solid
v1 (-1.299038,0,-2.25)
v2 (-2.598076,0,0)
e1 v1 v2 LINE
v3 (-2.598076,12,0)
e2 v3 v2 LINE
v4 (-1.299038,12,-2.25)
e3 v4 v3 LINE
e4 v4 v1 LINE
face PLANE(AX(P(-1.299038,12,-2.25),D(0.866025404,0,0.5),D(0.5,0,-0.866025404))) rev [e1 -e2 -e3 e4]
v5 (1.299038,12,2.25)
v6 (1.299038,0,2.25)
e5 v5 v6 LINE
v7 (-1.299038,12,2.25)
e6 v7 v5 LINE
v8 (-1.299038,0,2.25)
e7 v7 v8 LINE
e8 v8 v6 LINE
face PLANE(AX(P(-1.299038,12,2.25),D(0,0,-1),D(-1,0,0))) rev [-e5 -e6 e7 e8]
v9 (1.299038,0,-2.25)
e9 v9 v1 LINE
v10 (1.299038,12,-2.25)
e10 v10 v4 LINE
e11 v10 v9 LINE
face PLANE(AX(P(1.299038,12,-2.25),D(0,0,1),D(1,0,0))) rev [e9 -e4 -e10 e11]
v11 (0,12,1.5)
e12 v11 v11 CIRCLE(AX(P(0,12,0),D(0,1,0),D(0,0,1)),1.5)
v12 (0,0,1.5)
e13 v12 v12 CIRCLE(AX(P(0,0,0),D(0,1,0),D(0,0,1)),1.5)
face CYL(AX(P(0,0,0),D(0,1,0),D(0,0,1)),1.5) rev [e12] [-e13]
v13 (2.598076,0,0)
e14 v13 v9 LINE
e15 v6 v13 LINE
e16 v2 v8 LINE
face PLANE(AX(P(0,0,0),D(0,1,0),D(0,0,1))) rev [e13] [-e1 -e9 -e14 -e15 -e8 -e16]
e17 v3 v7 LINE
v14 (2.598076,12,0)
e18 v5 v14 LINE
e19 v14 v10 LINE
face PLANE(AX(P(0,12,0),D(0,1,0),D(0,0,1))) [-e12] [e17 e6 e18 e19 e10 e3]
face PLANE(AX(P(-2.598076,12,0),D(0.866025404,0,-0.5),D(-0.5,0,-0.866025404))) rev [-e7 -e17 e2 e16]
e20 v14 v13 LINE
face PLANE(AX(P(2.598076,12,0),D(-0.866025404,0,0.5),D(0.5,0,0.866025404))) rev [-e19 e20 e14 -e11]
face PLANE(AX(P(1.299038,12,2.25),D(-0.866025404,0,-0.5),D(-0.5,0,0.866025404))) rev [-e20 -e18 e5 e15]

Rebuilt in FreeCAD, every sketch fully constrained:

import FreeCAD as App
import Part
import Sketcher

V = App.Vector
Q = App.Units.Quantity


def add_polygon(sketch, points):
    """Adds a closed chain of lines whose ends are joined by coincident constraints."""
    first, n = sketch.GeometryCount, len(points)
    for a, b in zip(points, points[1:] + points[:1]):
        sketch.addGeometry(Part.LineSegment(App.Vector(*a, 0), App.Vector(*b, 0)), False)
    for i in range(n):
        sketch.addConstraint(Sketcher.Constraint("Coincident", first + i, 2, first + (i + 1) % n, 1))

doc = App.newDocument("Part")
body = doc.addObject("PartDesign::Body", "Body")

# Sketch on XZ plane
sketch1 = body.newObject("Sketcher::SketchObject", "Sketch")
sketch1.AttachmentSupport = (doc.getObject("XZ_Plane"), [""])
sketch1.MapMode = "FlatFace"
add_polygon(sketch1, [(-1.299038, -2.25), (-2.598076, 0), (-1.299038, 2.25), (1.299038, 2.25), (2.598076, 0), (1.299038, -2.25)])  # lines 0-5
sketch1.addConstraint(Sketcher.Constraint("Horizontal", 2))
sketch1.addConstraint(Sketcher.Constraint("Horizontal", 5))
sketch1.addConstraint(Sketcher.Constraint("Symmetric", 0, 2, 3, 2, -1, 1))
sketch1.addConstraint(Sketcher.Constraint("Symmetric", 1, 2, 4, 2, -1, 1))
sketch1.addConstraint(Sketcher.Constraint("PointOnObject", 0, 2, -1))
sketch1.addConstraint(Sketcher.Constraint("Parallel", 0, 3))
sketch1.addConstraint(Sketcher.Constraint("Vertical", 2, 2, 4, 2))
sketch1.addConstraint(Sketcher.Constraint("Angle", 0, Q("120 deg")))
sketch1.addConstraint(Sketcher.Constraint("DistanceY", 4, 2, 2, 2, 4.5))
sketch1.addConstraint(Sketcher.Constraint("DistanceX", 2, 1, 2, 2, 2.598076))
pad1 = body.newObject("PartDesign::Pad", "Pad")
pad1.Profile = sketch1
pad1.Length = 12
pad1.Reversed = True

# Sketch on XZ plane
sketch2 = body.newObject("Sketcher::SketchObject", "Sketch001")
sketch2.AttachmentSupport = (doc.getObject("XZ_Plane"), [""])
sketch2.MapMode = "FlatFace"
sketch2.AttachmentOffset = App.Placement(V(0, 0, -12), App.Rotation())
sketch2.addGeometry(Part.Circle(V(0, 0, 0), V(0, 0, 1), 1.5), False)
sketch2.addConstraint(Sketcher.Constraint("Coincident", 0, 3, -1, 1))
sketch2.addConstraint(Sketcher.Constraint("Diameter", 0, 3.0))
pocket1 = body.newObject("PartDesign::Pocket", "Pocket")
pocket1.Profile = sketch2
pocket1.Type = "ThroughAll"
pocket1.Reversed = True

doc.recompute()
